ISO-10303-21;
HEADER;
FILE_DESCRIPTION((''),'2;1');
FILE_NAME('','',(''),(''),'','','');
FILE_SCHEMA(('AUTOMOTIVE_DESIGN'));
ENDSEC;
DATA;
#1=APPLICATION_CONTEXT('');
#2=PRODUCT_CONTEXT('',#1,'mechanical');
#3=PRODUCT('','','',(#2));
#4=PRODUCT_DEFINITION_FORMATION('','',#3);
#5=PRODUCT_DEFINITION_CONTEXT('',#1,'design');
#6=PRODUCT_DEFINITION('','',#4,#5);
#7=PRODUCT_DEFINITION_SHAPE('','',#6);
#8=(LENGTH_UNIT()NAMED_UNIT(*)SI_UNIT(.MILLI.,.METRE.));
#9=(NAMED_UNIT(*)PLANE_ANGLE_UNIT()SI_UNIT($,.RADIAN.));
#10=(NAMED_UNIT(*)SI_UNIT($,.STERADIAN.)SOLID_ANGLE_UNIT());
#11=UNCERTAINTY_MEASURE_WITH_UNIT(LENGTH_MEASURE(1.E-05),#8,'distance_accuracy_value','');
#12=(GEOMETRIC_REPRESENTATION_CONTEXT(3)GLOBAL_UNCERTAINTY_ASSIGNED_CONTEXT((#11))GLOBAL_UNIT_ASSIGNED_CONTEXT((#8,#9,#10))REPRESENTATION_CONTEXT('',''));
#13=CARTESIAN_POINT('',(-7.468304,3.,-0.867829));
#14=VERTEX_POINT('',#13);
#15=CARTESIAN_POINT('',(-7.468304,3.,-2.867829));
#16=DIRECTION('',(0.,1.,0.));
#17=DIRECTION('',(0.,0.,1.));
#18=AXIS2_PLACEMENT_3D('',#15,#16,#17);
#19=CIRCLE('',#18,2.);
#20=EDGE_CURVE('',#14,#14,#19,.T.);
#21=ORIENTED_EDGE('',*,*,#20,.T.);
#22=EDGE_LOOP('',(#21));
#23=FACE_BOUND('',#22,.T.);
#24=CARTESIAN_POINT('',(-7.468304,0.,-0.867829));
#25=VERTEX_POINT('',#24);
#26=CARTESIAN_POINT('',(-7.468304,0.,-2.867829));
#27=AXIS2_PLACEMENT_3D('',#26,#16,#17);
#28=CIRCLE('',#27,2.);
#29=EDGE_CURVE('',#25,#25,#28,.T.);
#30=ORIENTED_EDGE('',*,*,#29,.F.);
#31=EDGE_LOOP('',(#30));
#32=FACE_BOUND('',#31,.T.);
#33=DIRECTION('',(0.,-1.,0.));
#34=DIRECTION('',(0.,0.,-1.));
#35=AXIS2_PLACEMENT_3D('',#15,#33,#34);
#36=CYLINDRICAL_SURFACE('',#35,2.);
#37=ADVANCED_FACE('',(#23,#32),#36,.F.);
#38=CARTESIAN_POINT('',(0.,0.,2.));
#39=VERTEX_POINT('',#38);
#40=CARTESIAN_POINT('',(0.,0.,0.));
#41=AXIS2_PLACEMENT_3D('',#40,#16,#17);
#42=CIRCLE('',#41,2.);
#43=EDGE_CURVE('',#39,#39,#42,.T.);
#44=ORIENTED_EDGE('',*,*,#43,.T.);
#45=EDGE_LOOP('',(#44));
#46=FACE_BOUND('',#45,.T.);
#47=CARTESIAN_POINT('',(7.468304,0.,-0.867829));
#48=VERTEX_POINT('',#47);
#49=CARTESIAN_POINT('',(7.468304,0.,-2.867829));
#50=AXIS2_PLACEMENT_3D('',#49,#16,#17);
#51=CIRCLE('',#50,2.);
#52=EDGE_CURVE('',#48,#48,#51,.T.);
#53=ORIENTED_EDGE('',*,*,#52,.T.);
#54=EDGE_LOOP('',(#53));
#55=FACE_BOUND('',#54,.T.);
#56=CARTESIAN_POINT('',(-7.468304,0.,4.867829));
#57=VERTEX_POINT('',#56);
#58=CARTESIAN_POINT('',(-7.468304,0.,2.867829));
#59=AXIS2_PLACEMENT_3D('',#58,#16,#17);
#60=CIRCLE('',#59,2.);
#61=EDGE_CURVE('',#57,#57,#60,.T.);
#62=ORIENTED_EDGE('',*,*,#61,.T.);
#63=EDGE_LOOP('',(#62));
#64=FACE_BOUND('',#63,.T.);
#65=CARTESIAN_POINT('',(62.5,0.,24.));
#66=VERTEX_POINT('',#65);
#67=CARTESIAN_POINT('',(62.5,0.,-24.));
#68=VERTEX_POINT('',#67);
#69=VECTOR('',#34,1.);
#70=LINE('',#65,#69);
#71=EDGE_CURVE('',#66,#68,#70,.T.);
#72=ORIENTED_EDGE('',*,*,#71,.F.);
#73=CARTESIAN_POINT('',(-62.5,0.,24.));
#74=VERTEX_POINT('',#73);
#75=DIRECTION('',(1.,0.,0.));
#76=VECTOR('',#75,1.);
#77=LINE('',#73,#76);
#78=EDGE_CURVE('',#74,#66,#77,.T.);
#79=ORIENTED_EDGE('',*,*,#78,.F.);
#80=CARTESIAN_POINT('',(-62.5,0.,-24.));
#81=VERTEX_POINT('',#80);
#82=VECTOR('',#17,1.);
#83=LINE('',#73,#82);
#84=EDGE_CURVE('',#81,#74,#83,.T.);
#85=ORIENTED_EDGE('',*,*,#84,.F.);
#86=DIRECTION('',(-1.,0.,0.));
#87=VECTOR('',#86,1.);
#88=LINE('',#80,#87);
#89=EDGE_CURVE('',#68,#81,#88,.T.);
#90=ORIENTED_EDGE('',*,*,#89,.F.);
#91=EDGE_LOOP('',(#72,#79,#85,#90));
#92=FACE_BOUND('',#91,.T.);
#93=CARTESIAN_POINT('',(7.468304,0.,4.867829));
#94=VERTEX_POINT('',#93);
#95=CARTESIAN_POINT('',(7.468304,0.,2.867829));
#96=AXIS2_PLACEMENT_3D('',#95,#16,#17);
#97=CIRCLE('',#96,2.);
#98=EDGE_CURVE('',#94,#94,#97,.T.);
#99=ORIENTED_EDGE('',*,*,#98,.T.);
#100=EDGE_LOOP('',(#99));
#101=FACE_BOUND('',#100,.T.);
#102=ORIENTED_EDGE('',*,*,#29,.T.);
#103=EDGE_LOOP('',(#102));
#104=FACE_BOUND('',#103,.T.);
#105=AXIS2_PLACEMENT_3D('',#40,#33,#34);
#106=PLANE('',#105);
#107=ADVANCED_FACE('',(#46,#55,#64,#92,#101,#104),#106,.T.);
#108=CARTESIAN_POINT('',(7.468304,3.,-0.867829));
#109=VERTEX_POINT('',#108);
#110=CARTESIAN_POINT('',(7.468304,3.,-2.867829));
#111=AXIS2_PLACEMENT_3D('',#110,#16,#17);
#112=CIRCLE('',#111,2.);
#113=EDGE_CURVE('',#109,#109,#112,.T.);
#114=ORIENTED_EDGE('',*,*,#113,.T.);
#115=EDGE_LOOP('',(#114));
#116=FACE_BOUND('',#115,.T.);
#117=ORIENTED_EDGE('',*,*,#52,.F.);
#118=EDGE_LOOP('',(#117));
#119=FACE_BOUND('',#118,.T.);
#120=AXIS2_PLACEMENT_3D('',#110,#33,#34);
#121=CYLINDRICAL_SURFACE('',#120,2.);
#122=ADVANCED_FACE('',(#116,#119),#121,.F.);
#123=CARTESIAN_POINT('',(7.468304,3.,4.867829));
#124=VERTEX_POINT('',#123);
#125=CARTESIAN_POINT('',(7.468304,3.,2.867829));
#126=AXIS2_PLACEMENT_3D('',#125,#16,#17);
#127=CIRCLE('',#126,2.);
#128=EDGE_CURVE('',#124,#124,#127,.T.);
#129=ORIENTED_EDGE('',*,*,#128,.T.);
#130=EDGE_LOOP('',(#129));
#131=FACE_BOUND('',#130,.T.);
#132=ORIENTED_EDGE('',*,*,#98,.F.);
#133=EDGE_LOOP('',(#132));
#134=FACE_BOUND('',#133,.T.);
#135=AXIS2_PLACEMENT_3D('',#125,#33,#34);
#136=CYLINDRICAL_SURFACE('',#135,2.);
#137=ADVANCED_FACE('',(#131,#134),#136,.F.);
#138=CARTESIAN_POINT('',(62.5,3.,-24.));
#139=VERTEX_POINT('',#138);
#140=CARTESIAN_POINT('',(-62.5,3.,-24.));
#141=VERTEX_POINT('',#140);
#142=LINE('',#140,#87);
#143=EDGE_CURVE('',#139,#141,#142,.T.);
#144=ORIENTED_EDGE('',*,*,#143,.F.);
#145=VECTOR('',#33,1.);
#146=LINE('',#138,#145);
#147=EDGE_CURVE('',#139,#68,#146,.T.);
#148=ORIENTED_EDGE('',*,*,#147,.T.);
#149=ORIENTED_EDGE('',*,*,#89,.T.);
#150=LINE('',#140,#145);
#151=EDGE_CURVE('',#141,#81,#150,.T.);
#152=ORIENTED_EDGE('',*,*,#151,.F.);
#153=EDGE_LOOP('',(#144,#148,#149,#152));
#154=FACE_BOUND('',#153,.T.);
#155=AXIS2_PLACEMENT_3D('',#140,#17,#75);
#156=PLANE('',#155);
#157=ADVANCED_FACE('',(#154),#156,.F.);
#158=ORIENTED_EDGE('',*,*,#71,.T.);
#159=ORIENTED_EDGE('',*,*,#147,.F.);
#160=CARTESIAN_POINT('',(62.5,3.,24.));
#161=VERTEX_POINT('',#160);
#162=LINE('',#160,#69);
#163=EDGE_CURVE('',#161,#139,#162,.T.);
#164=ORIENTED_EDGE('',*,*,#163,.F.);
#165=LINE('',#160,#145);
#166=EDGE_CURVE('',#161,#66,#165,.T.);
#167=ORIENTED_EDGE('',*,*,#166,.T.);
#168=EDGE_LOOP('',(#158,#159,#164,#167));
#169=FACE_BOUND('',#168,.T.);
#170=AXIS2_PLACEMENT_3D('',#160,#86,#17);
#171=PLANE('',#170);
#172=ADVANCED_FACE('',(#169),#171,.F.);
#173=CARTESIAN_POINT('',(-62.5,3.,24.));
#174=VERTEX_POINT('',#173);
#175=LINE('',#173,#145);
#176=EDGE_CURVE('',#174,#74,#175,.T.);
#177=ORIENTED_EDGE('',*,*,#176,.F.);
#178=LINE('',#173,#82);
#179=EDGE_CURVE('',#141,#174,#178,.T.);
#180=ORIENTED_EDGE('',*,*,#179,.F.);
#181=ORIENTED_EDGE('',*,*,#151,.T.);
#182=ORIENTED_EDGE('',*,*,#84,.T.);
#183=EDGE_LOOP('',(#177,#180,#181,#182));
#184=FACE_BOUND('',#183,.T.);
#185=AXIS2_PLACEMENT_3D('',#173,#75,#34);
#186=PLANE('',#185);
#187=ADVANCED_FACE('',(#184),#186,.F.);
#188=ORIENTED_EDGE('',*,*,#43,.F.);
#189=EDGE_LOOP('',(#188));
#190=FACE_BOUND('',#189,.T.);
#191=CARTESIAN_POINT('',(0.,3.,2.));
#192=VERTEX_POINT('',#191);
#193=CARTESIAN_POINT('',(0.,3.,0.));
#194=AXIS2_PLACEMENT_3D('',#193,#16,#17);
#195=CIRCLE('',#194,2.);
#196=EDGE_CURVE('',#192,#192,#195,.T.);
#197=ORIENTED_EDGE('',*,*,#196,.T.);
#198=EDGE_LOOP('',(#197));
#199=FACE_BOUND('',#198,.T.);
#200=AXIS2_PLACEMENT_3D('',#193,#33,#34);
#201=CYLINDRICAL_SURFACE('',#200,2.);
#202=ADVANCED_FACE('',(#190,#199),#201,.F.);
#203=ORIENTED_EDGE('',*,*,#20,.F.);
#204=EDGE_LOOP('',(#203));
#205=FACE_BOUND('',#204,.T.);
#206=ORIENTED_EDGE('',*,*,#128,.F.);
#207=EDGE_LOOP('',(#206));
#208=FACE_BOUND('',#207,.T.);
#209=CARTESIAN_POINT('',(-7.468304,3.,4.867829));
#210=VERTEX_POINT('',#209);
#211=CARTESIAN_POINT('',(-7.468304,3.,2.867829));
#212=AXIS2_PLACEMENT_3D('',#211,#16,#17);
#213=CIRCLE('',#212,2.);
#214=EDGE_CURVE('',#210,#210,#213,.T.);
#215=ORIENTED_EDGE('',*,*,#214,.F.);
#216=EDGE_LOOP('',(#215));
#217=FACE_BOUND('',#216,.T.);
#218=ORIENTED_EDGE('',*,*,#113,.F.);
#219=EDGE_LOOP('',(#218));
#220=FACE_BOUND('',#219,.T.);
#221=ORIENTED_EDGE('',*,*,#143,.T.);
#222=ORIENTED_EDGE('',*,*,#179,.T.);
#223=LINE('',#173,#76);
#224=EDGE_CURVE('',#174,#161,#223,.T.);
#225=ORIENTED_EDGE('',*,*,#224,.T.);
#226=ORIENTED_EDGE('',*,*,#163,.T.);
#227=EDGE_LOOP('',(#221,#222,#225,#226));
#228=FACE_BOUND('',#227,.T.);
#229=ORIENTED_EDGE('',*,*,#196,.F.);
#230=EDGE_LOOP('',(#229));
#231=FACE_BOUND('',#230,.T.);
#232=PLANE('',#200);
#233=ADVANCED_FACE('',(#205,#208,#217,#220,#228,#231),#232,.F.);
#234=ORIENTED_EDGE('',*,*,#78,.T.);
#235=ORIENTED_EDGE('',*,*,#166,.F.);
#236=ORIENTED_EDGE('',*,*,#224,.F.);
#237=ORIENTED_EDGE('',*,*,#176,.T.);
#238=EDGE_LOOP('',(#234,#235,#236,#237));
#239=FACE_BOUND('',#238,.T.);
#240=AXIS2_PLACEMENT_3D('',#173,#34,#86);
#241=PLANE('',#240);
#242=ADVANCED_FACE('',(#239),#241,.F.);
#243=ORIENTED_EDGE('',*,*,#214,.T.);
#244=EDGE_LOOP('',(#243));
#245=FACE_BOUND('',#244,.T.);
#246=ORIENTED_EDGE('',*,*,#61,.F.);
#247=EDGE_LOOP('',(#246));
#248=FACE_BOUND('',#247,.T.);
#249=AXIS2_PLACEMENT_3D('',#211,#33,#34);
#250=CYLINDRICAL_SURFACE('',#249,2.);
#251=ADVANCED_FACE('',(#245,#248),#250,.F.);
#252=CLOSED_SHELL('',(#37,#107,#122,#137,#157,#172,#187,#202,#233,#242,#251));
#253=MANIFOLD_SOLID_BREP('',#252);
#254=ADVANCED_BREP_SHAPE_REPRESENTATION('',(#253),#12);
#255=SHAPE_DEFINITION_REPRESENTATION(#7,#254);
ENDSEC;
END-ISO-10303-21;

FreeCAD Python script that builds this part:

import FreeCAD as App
import Part
import Sketcher
from FreeCAD import Vector
Q = App.Units.Quantity


def add_polygon(sketch, points):
    """Adds a closed chain of lines whose ends are joined by coincident constraints."""
    first, n = sketch.GeometryCount, len(points)
    for a, b in zip(points, points[1:] + points[:1]):
        sketch.addGeometry(Part.LineSegment(App.Vector(*a, 0), App.Vector(*b, 0)), False)
    for i in range(n):
        sketch.addConstraint(Sketcher.Constraint("Coincident", first + i, 2, first + (i + 1) % n, 1))

doc = App.newDocument("Part")
body = doc.addObject("PartDesign::Body", "Body")

# Sketch on XZ plane
sketch1 = doc.addObject("Sketcher::SketchObject", "Sketch")
body.addObject(sketch1)
sketch1.AttachmentSupport = (doc.XZ_Plane, [""])
sketch1.MapMode = "FlatFace"
add_polygon(sketch1, [(-62.5, -24), (-62.5, 24), (62.5, 24), (62.5, -24)])  # lines 0-3
sketch1.addGeometry(Part.Circle(Vector(-7.5, 2.9, 0), Vector(0, 0, 1), 2), False)  # 4
sketch1.addGeometry(Part.Circle(Vector(7.5, 2.9, 0), Vector(0, 0, 1), 2), False)  # 5
sketch1.addGeometry(Part.Circle(Vector(-7.5, -2.9, 0), Vector(0, 0, 1), 2), False)  # 6
sketch1.addGeometry(Part.Circle(Vector(0, 0, 0), Vector(0, 0, 1), 2), False)  # 7
sketch1.addGeometry(Part.Circle(Vector(7.5, -2.9, 0), Vector(0, 0, 1), 2), False)  # 8
sketch1.addConstraint(Sketcher.Constraint("Vertical", 0))
sketch1.addConstraint(Sketcher.Constraint("Horizontal", 1))
sketch1.addConstraint(Sketcher.Constraint("Vertical", 2))
sketch1.addConstraint(Sketcher.Constraint("Horizontal", 3))
sketch1.addConstraint(Sketcher.Constraint("Coincident", 7, 3, -1, 1))
sketch1.addConstraint(Sketcher.Constraint("Equal", 4, 5))
sketch1.addConstraint(Sketcher.Constraint("Equal", 5, 6))
sketch1.addConstraint(Sketcher.Constraint("Equal", 6, 7))
sketch1.addConstraint(Sketcher.Constraint("Equal", 7, 8))
sketch1.addConstraint(Sketcher.Constraint("Symmetric", 5, 3, 6, 3, -1, 1))
sketch1.addConstraint(Sketcher.Constraint("Symmetric", 4, 3, 8, 3, -1, 1))
sketch1.addConstraint(Sketcher.Constraint("Symmetric", 0, 2, 2, 2, -1, 1))
sketch1.addConstraint(Sketcher.Constraint("Symmetric", 4, 3, 5, 3, -2))
sketch1.addConstraint(Sketcher.Constraint("Diameter", 4, Q("4 mm")))
sketch1.addConstraint(Sketcher.Constraint("DistanceX", 1, 1, 1, 2, Q("125 mm")))
sketch1.addConstraint(Sketcher.Constraint("DistanceY", 0, 1, 0, 2, Q("48 mm")))
sketch1.addConstraint(Sketcher.Constraint("DistanceY", -1, 1, 4, 3, Q("2.867829 mm")))
sketch1.addConstraint(Sketcher.Constraint("DistanceX", 4, 3, -1, 1, Q("7.468304 mm")))
pad1 = doc.addObject("PartDesign::Pad", "Pad")
body.addObject(pad1)
pad1.Profile = sketch1
pad1.Length = 3
pad1.Reversed = True

doc.recompute()
